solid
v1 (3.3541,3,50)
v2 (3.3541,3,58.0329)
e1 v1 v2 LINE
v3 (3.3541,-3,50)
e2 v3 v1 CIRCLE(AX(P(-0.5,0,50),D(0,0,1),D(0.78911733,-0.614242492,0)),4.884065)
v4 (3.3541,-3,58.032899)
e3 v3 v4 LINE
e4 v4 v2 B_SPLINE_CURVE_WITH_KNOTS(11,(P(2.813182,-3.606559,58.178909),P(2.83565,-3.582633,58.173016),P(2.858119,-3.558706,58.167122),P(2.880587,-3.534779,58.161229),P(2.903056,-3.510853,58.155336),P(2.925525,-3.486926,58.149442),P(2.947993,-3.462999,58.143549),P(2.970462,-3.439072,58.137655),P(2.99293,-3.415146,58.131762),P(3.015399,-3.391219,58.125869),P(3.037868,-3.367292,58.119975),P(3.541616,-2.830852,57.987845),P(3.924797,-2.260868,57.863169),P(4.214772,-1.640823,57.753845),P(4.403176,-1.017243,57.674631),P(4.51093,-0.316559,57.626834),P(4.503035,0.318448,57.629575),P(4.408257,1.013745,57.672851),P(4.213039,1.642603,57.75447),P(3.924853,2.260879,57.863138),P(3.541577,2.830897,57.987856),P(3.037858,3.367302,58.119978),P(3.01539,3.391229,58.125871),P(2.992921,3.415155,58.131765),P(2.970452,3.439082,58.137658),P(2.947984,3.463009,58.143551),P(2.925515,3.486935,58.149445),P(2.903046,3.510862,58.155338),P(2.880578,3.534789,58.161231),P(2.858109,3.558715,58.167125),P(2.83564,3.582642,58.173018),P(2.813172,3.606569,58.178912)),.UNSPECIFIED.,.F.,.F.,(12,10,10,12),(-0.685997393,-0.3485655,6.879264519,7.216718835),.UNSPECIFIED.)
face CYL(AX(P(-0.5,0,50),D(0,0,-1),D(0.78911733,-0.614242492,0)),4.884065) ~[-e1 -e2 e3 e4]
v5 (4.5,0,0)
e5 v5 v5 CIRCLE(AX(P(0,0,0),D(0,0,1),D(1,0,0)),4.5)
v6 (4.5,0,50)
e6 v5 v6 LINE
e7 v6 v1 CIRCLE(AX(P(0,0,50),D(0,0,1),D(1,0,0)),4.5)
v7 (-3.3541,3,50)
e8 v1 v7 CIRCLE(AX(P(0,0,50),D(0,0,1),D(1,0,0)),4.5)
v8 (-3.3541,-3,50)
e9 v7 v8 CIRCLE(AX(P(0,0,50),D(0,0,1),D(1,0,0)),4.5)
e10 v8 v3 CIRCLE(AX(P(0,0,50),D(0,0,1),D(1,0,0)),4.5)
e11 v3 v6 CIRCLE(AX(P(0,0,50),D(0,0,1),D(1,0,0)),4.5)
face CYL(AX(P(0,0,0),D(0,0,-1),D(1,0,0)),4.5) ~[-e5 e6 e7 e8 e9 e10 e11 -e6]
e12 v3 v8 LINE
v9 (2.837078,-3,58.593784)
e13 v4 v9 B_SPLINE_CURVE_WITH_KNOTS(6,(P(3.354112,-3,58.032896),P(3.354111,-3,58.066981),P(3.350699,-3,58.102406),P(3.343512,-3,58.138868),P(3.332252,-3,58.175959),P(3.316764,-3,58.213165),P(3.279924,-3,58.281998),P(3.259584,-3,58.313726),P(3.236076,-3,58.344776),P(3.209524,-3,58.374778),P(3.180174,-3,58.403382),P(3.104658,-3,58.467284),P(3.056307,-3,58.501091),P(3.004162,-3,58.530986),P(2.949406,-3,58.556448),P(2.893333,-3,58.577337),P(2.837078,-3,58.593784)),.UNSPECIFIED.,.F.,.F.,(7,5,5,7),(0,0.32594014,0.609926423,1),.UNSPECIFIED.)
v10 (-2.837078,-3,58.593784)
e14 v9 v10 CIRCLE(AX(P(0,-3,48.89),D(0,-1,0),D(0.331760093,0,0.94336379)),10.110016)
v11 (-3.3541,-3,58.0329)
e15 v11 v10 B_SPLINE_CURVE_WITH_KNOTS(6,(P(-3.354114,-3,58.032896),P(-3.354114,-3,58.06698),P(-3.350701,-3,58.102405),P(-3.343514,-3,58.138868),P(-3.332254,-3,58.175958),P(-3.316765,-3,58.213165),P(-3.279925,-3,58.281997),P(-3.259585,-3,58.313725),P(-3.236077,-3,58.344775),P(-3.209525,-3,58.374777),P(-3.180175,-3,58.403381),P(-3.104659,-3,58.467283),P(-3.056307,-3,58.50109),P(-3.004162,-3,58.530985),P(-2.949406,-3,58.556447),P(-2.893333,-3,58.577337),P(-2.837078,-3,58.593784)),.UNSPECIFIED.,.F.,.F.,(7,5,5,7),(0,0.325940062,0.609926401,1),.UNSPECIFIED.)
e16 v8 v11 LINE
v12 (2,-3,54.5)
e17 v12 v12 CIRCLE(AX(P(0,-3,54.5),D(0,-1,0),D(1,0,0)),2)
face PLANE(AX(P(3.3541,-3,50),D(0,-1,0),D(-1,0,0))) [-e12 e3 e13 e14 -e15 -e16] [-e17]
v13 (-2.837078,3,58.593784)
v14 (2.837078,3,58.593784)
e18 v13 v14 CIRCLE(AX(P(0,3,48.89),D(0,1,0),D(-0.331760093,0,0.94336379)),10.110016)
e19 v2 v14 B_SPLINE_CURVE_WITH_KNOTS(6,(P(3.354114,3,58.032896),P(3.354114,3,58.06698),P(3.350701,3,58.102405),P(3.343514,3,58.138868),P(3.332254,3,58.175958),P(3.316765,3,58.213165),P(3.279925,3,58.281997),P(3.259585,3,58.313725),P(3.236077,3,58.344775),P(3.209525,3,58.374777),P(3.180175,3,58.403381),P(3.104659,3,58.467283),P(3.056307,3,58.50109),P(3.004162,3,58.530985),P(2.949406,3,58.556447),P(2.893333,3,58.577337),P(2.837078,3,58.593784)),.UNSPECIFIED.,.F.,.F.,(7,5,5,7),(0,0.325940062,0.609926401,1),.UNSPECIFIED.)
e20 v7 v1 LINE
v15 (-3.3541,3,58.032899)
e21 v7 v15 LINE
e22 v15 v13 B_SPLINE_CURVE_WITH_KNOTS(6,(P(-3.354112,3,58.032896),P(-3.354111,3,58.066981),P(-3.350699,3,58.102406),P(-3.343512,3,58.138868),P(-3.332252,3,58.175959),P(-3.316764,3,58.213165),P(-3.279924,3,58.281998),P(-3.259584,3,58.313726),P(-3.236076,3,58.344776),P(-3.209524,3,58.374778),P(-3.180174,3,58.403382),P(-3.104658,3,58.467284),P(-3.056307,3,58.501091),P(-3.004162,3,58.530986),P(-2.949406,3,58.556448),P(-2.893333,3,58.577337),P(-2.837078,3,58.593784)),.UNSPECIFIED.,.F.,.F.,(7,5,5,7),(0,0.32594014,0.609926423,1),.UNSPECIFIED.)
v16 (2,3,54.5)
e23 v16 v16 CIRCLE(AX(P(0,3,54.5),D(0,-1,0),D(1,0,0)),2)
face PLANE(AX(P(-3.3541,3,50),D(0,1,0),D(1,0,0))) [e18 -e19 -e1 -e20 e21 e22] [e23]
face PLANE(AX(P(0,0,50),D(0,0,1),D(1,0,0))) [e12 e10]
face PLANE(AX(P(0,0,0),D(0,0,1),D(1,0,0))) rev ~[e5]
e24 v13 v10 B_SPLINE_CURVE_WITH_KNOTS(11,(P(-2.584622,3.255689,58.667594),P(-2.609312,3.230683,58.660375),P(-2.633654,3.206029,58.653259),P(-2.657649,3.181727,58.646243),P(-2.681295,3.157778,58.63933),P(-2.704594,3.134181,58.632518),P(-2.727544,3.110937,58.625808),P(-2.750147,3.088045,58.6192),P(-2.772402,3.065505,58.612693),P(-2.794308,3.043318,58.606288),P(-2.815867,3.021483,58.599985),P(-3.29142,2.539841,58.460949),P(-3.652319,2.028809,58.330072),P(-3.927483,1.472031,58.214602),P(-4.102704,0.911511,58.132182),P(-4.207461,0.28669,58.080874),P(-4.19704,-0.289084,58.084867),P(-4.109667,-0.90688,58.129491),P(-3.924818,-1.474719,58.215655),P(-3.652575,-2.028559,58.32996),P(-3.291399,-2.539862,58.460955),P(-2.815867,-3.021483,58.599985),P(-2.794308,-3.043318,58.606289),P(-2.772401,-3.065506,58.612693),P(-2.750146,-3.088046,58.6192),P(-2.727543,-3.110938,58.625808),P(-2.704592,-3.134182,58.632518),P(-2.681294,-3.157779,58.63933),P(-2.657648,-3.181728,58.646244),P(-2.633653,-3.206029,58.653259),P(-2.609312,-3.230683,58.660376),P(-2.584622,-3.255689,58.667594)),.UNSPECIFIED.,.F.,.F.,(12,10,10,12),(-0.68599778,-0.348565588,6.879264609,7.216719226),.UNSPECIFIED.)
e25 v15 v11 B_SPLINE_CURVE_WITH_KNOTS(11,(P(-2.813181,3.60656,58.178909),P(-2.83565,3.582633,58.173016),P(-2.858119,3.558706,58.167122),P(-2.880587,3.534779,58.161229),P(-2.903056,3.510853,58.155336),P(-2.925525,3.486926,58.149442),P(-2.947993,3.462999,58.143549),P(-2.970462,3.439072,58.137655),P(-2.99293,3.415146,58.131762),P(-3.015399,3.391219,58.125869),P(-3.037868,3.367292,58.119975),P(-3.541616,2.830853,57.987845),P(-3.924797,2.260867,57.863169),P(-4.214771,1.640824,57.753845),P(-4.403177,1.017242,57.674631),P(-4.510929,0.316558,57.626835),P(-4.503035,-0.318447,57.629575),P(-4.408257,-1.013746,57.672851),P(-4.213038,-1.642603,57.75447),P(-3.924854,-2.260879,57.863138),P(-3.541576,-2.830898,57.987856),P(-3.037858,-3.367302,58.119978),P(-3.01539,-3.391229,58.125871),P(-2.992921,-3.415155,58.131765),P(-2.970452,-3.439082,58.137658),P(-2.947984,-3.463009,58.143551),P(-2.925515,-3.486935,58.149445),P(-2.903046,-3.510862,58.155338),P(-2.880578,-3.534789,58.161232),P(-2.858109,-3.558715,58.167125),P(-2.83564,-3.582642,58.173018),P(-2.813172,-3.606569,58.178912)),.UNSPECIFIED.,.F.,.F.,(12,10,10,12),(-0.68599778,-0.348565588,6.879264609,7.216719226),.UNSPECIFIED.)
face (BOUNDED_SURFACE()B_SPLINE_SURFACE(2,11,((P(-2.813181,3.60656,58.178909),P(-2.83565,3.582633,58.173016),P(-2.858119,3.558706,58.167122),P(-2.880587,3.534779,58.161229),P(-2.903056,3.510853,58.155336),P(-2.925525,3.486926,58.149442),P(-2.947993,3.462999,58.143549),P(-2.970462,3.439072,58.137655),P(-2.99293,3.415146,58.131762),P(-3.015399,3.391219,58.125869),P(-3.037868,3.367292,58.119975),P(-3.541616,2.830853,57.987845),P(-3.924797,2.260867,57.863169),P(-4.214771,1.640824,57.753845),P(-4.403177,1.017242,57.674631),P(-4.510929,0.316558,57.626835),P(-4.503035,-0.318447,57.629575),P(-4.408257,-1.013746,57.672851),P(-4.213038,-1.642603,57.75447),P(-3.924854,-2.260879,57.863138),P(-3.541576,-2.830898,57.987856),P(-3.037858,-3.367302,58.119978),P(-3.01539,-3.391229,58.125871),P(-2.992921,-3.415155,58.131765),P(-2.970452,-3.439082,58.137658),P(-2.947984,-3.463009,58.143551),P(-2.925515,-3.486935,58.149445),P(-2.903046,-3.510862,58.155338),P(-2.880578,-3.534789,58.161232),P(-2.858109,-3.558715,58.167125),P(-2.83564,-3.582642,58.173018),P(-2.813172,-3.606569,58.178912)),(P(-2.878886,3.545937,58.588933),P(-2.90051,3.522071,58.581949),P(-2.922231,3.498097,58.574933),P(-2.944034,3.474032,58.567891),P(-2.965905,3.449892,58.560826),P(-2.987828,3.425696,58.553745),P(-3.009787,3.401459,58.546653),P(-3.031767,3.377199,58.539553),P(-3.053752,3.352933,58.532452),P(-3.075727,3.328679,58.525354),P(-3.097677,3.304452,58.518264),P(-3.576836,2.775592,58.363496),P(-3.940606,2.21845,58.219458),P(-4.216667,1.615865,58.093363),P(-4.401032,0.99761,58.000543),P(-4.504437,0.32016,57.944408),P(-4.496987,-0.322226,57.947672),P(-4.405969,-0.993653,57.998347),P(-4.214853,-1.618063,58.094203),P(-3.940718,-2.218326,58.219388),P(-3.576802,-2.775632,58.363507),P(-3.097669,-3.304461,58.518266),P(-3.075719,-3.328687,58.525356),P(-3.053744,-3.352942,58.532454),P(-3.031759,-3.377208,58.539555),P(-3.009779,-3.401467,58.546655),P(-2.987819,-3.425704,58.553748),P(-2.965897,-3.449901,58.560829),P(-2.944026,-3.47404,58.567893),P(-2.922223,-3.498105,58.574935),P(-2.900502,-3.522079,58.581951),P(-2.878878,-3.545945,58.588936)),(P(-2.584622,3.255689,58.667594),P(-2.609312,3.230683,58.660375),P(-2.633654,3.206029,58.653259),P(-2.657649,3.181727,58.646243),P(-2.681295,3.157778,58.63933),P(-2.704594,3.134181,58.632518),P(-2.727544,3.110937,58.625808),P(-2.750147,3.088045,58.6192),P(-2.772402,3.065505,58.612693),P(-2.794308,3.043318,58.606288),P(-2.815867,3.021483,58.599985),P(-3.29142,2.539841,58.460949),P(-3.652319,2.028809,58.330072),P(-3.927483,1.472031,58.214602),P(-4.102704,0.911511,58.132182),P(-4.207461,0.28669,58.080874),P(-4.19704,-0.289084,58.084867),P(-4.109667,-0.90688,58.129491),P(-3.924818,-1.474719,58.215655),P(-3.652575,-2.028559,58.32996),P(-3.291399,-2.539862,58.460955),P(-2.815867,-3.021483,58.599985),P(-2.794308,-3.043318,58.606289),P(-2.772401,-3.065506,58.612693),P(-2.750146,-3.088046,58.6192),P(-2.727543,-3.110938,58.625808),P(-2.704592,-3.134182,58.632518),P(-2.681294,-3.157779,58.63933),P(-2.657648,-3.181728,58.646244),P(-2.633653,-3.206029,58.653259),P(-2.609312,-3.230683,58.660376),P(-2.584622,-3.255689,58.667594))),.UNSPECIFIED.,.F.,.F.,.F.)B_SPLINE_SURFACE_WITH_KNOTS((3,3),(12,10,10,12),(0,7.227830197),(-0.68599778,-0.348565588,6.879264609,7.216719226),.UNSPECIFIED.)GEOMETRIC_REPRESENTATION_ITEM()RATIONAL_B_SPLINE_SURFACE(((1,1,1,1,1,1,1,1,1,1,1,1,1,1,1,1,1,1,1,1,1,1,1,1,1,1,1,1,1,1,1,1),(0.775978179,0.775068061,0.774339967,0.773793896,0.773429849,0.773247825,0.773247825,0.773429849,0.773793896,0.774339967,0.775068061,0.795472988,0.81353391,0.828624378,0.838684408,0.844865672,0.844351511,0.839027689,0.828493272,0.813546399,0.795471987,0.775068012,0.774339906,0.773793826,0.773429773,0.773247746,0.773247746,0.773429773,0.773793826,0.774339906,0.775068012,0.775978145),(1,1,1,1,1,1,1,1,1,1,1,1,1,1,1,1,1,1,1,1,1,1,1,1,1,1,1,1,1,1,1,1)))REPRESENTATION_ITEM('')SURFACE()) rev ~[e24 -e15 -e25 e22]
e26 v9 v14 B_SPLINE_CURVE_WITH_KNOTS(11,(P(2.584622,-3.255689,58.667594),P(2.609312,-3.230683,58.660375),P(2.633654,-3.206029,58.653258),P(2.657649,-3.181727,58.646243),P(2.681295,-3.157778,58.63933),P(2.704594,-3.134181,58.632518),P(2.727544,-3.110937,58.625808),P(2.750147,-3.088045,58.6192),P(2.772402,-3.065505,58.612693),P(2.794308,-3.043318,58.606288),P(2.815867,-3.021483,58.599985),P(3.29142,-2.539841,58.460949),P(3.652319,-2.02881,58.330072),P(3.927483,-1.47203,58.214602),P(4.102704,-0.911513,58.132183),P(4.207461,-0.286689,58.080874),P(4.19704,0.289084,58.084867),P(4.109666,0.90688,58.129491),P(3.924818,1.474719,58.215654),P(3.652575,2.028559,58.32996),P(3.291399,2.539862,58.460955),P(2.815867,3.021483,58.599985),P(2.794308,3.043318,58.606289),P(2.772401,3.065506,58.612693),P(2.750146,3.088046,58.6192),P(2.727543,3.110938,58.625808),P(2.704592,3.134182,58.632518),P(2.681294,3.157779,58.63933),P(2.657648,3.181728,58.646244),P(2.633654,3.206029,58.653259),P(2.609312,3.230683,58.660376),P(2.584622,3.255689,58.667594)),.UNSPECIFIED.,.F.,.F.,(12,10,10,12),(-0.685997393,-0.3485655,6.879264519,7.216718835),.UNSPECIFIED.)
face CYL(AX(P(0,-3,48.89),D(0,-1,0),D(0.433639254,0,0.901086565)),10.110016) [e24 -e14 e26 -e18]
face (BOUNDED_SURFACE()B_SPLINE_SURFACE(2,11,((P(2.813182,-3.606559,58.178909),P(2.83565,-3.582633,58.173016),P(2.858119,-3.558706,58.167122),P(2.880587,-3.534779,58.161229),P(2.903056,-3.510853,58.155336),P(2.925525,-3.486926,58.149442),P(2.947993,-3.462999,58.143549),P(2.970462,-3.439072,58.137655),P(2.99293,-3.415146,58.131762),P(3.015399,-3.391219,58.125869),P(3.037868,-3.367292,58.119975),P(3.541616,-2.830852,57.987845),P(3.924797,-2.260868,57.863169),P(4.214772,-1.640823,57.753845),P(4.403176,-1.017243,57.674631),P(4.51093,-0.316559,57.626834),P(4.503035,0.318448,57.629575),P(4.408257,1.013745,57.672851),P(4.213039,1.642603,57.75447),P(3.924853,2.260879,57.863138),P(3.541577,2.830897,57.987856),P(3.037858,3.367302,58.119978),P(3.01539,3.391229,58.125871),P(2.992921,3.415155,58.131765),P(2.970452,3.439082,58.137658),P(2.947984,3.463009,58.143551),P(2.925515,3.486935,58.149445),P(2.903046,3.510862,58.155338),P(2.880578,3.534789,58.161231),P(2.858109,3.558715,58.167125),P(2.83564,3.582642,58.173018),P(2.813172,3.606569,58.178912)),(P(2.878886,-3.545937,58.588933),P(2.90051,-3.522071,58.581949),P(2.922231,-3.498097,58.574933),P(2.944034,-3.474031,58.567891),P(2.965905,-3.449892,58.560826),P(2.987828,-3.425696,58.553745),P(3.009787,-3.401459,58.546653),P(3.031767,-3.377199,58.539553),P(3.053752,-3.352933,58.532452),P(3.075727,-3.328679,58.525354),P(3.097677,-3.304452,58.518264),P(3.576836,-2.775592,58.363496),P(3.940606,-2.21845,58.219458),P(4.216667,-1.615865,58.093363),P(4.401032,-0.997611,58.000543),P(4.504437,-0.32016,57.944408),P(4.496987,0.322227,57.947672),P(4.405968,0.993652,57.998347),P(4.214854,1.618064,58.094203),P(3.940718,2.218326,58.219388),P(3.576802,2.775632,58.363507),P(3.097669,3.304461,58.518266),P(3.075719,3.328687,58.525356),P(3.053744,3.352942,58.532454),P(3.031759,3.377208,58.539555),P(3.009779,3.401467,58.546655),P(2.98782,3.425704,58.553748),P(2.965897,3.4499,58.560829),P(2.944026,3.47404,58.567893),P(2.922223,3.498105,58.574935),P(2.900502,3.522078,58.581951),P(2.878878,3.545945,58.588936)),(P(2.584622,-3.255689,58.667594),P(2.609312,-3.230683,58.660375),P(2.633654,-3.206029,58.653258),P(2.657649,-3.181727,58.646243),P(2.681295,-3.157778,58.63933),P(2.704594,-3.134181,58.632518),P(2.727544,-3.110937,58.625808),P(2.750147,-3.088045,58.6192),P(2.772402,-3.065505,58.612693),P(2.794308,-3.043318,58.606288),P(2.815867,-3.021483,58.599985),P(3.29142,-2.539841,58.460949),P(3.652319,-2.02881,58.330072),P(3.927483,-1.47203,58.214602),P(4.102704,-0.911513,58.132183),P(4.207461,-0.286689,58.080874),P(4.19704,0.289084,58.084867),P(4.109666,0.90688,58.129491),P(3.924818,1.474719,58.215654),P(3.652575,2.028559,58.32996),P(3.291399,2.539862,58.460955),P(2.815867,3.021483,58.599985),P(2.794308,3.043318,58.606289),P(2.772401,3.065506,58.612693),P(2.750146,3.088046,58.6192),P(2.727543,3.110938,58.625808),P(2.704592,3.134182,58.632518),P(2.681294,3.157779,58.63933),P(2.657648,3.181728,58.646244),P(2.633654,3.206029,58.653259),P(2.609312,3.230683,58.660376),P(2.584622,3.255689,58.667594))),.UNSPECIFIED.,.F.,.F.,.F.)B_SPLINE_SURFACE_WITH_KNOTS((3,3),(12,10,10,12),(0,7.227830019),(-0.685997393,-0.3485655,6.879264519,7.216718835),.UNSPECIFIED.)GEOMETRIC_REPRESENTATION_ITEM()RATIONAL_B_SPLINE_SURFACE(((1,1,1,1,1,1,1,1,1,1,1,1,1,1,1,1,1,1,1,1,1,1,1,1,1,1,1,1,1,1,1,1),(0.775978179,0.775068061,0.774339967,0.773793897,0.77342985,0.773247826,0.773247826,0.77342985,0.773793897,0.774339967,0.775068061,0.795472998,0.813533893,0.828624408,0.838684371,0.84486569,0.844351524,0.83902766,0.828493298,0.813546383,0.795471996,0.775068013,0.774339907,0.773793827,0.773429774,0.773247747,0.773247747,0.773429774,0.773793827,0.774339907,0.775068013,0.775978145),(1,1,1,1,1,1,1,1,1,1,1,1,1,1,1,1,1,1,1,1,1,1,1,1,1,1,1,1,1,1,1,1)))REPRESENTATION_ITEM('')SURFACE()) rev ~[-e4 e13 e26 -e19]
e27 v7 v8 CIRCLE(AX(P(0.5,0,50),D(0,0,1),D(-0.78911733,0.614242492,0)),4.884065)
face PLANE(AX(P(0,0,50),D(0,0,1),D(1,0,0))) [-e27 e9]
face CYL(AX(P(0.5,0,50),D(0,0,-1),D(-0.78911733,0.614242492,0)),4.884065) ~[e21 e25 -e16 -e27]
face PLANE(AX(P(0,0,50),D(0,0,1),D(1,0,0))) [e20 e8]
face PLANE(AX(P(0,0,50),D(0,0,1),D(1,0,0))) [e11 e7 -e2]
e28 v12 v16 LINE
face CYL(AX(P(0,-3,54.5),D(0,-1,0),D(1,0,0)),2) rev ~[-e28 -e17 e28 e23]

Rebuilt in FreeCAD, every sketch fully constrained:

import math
import FreeCAD as App
import Part
import Sketcher
Q = App.Units.Quantity


def edges_at(feature, points):
    """Names of the edges that pass closest to the given points."""
    edges = feature.Shape.Edges
    near = lambda p: min(range(len(edges)), key=lambda i: edges[i].distToShape(Part.Vertex(*p))[0])
    return sorted({f"Edge{near(p) + 1}" for p in points})

doc = App.newDocument("Part")
body = doc.addObject("PartDesign::Body", "Body")

sketch1 = doc.addObject("Sketcher::SketchObject", "Sketch")
body.addObject(sketch1)
sketch1.AttachmentSupport = (doc.XY_Plane, [""])
sketch1.MapMode = "FlatFace"
sketch1.addGeometry(Part.Circle(App.Vector(0, 0, 0), App.Vector(0, 0, 1), 4.5), False)
sketch1.addConstraint(Sketcher.Constraint("Coincident", 0, 3, -1, 1))
sketch1.addConstraint(Sketcher.Constraint("Diameter", 0, Q("9 mm")))
pad1 = doc.addObject("PartDesign::Pad", "Pad")
body.addObject(pad1)
pad1.Profile = sketch1
pad1.Length = 50

sketch2 = doc.addObject("Sketcher::SketchObject", "Sketch001")
body.addObject(sketch2)
sketch2.AttachmentSupport = (doc.XY_Plane, [""])
sketch2.MapMode = "FlatFace"
sketch2.AttachmentOffset = App.Placement(App.Vector(0, 0, 50), App.Rotation())
sketch2.addGeometry(Part.LineSegment(App.Vector(-3.4, -3, 0), App.Vector(3.4, -3, 0)), False)
sketch2.addGeometry(Part.ArcOfCircle(Part.Circle(App.Vector(-0.5, 0, 0), App.Vector(0, 0, 1), 4.9), math.radians(-38), math.radians(38)), False)
sketch2.addGeometry(Part.LineSegment(App.Vector(3.4, 3, 0), App.Vector(-3.4, 3, 0)), False)
sketch2.addGeometry(Part.ArcOfCircle(Part.Circle(App.Vector(0.5, 0, 0), App.Vector(0, 0, 1), 4.9), math.radians(142), math.radians(218)), False)
sketch2.addConstraint(Sketcher.Constraint("Coincident", 0, 2, 1, 1))
sketch2.addConstraint(Sketcher.Constraint("Coincident", 1, 2, 2, 1))
sketch2.addConstraint(Sketcher.Constraint("Coincident", 2, 2, 3, 1))
sketch2.addConstraint(Sketcher.Constraint("Coincident", 3, 2, 0, 1))
sketch2.addConstraint(Sketcher.Constraint("Horizontal", 0))
sketch2.addConstraint(Sketcher.Constraint("Horizontal", 2))
sketch2.addConstraint(Sketcher.Constraint("Equal", 1, 3))
sketch2.addConstraint(Sketcher.Constraint("Symmetric", 1, 3, 3, 3, -1, 1))
sketch2.addConstraint(Sketcher.Constraint("Symmetric", 0, 2, 1, 2, -1))
sketch2.addConstraint(Sketcher.Constraint("DistanceY", 0, 2, 1, 2, Q("6 mm")))
sketch2.addConstraint(Sketcher.Constraint("DistanceX", 1, 3, -1, 1, Q("0.5 mm")))
sketch2.addConstraint(Sketcher.Constraint("Radius", 1, Q("4.884 mm")))
pad2 = doc.addObject("PartDesign::Pad", "Pad001")
body.addObject(pad2)
pad2.Profile = sketch2
pad2.Length = 9

sketch3 = doc.addObject("Sketcher::SketchObject", "Sketch002")
body.addObject(sketch3)
sketch3.AttachmentSupport = (doc.XZ_Plane, [""])
sketch3.MapMode = "FlatFace"
sketch3.AttachmentOffset = App.Placement(App.Vector(0, 0, 3), App.Rotation())
sketch3.addGeometry(Part.ArcOfCircle(Part.Circle(App.Vector(0, 48.9, 0), App.Vector(0, 0, 1), 10.1), math.radians(64), math.radians(90)), False)
sketch3.addGeometry(Part.LineSegment(App.Vector(4.4, 58, 0), App.Vector(4.4, 59, 0)), False)
sketch3.addGeometry(Part.LineSegment(App.Vector(4.4, 59, 0), App.Vector(0, 59, 0)), False)
sketch3.addGeometry(Part.ArcOfCircle(Part.Circle(App.Vector(0, 48.9, 0), App.Vector(0, 0, 1), 10.1), math.radians(90), math.radians(116)), False)
sketch3.addGeometry(Part.LineSegment(App.Vector(0, 59, 0), App.Vector(-4.4, 59, 0)), False)
sketch3.addGeometry(Part.LineSegment(App.Vector(-4.4, 59, 0), App.Vector(-4.4, 58, 0)), False)
sketch3.addConstraint(Sketcher.Constraint("Coincident", 0, 1, 1, 1))
sketch3.addConstraint(Sketcher.Constraint("Coincident", 1, 2, 2, 1))
sketch3.addConstraint(Sketcher.Constraint("Tangent", 2, 2, 0, 2))
sketch3.addConstraint(Sketcher.Constraint("Tangent", 3, 1, 4, 1))
sketch3.addConstraint(Sketcher.Constraint("Coincident", 4, 2, 5, 1))
sketch3.addConstraint(Sketcher.Constraint("Coincident", 5, 2, 3, 2))
sketch3.addConstraint(Sketcher.Constraint("Vertical", 1))
sketch3.addConstraint(Sketcher.Constraint("Horizontal", 2))
sketch3.addConstraint(Sketcher.Constraint("Horizontal", 4))
sketch3.addConstraint(Sketcher.Constraint("Vertical", 5))
sketch3.addConstraint(Sketcher.Constraint("Coincident", 3, 3, 0, 3))
sketch3.addConstraint(Sketcher.Constraint("Equal", 0, 3))
sketch3.addConstraint(Sketcher.Constraint("Symmetric", 0, 1, 5, 2, -2))
sketch3.addConstraint(Sketcher.Constraint("DistanceY", 1, 1, 1, 2, Q("1 mm")))
sketch3.addConstraint(Sketcher.Constraint("Radius", 0, Q("10.11 mm")))
sketch3.addConstraint(Sketcher.Constraint("DistanceY", -1, 1, 0, 1, Q("58 mm")))
pocket1 = doc.addObject("PartDesign::Pocket", "Pocket")
body.addObject(pocket1)
pocket1.Profile = sketch3
pocket1.Type = "ThroughAll"
doc.recompute()

fillet = doc.addObject("PartDesign::Fillet", "Fillet")
body.addObject(fillet)
fillet.Base = (pocket1, edges_at(pocket1, [
    (-4.128, -1.56, 58.119),
    (-4.128, 1.56, 58.119),
    (4.128, 1.56, 58.119),
    (4.128, -1.56, 58.119),
]))
fillet.Radius = 0.5

sketch4 = doc.addObject("Sketcher::SketchObject", "Sketch003")
body.addObject(sketch4)
sketch4.AttachmentSupport = (doc.XZ_Plane, [""])
sketch4.MapMode = "FlatFace"
sketch4.AttachmentOffset = App.Placement(App.Vector(0, 0, 3), App.Rotation())
sketch4.addGeometry(Part.Circle(App.Vector(0, 54.5, 0), App.Vector(0, 0, 1), 2), False)
sketch4.addConstraint(Sketcher.Constraint("PointOnObject", 0, 3, -2))
sketch4.addConstraint(Sketcher.Constraint("Diameter", 0, Q("4 mm")))
sketch4.addConstraint(Sketcher.Constraint("DistanceY", -1, 1, 0, 3, Q("54.5 mm")))
pocket2 = doc.addObject("PartDesign::Pocket", "Pocket001")
body.addObject(pocket2)
pocket2.Profile = sketch4
pocket2.Type = "ThroughAll"

doc.recompute()
